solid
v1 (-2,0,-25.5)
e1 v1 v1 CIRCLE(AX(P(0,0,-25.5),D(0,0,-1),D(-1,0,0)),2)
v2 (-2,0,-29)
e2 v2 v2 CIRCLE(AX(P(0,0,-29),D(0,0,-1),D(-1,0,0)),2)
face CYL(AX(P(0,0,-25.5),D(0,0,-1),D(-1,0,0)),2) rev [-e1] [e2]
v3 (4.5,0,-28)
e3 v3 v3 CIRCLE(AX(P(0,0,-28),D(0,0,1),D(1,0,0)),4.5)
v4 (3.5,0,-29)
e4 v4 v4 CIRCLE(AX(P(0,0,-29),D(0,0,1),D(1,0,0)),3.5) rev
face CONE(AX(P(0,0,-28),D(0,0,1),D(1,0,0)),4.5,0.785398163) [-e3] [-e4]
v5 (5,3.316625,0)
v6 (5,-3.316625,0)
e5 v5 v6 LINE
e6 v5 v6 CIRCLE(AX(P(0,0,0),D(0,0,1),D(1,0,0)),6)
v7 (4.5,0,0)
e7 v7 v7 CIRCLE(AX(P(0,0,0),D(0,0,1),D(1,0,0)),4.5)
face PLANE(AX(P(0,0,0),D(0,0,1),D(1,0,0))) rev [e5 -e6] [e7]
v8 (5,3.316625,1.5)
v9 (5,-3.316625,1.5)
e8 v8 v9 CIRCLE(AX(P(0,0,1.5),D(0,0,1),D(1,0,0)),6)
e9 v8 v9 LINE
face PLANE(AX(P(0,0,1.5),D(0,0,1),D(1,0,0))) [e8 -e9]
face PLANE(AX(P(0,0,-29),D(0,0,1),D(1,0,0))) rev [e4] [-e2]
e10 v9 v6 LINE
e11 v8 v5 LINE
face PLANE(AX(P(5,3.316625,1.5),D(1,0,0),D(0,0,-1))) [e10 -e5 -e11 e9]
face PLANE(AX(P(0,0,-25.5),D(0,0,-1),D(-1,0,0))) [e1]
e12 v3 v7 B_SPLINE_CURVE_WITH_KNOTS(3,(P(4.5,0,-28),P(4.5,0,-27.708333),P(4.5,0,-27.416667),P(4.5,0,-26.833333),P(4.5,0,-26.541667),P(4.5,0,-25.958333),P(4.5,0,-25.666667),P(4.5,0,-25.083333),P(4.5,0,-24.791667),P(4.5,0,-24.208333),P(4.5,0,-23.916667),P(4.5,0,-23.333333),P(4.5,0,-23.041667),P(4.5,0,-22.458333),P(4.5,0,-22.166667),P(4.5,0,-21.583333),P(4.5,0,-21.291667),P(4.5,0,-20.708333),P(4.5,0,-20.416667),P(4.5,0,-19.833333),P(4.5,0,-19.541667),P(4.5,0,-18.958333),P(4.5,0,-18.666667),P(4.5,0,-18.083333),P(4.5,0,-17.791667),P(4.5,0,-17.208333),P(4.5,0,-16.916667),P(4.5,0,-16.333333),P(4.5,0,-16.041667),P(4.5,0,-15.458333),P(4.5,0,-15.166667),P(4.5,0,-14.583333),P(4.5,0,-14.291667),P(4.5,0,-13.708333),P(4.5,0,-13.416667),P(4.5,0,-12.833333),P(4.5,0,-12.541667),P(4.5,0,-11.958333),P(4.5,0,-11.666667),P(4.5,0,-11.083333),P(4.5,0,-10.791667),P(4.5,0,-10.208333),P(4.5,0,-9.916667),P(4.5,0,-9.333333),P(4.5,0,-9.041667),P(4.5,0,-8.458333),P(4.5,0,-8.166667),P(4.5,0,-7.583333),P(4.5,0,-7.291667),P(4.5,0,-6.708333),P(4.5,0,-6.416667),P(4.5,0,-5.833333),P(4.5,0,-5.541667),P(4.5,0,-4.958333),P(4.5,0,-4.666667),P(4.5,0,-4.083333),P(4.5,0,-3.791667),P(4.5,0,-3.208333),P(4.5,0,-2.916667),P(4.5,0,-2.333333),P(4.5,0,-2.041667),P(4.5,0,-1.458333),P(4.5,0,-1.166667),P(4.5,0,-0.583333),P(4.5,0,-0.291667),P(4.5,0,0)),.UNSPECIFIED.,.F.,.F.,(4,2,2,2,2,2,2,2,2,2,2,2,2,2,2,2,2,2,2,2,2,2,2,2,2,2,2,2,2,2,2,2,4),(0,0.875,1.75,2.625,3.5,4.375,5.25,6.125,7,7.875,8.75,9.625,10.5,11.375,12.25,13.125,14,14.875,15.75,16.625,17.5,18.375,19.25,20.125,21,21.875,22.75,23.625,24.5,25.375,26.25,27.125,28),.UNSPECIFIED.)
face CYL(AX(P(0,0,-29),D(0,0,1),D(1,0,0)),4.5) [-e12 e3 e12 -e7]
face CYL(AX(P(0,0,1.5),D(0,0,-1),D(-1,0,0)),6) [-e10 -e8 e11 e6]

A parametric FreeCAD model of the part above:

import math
import FreeCAD as App
import Part
import Sketcher
Q = App.Units.Quantity


def edges_at(feature, points):
    """Names of the edges that pass closest to the given points."""
    edges = feature.Shape.Edges
    near = lambda p: min(range(len(edges)), key=lambda i: edges[i].distToShape(Part.Vertex(*p))[0])
    return sorted({f"Edge{near(p) + 1}" for p in points})

doc = App.newDocument("Part")
body = doc.addObject("PartDesign::Body", "Body")

# Sketch on XY plane
sketch1 = body.newObject("Sketcher::SketchObject", "Sketch")
sketch1.AttachmentSupport = (doc.getObject("XY_Plane"), [""])
sketch1.MapMode = "FlatFace"
sketch1.addGeometry(Part.Circle(App.Vector(0, 0, 0), App.Vector(0, 0, 1), 4.5), False)
sketch1.addConstraint([
    Sketcher.Constraint("Coincident", 0, 3, -1, 1),
    Sketcher.Constraint("Diameter", 0, Q("9 mm")),
])
pad1 = body.newObject("PartDesign::Pad", "Pad")
pad1.Profile = sketch1
pad1.Length = 29
pad1.Reversed = True

# Sketch on XY plane
sketch2 = body.newObject("Sketcher::SketchObject", "Sketch001")
sketch2.AttachmentSupport = (doc.getObject("XY_Plane"), [""])
sketch2.MapMode = "FlatFace"
sketch2.addGeometry([
    Part.LineSegment(App.Vector(5, -3, 0), App.Vector(5, 3, 0)),
    Part.ArcOfCircle(Part.Circle(App.Vector(0, 0, 0), App.Vector(0, 0, 1), 6), math.radians(34), math.radians(326)),
], False)
sketch2.addConstraint([
    Sketcher.Constraint("Coincident", 0, 1, 1, 2),
    Sketcher.Constraint("Coincident", 1, 1, 0, 2),
    Sketcher.Constraint("Vertical", 0),
    Sketcher.Constraint("Coincident", 1, 3, -1, 1),
    Sketcher.Constraint("Radius", 1, Q("6 mm")),
    Sketcher.Constraint("DistanceX", -1, 1, 0, 1, Q("5 mm")),
])
pad2 = body.newObject("PartDesign::Pad", "Pad001")
pad2.Profile = sketch2
pad2.Length = 1.5

# Sketch on XY plane
sketch3 = body.newObject("Sketcher::SketchObject", "Sketch002")
sketch3.AttachmentSupport = (doc.getObject("XY_Plane"), [""])
sketch3.MapMode = "FlatFace"
sketch3.AttachmentOffset = App.Placement(App.Vector(0, 0, -29), App.Rotation())
sketch3.addGeometry(Part.Circle(App.Vector(0, 0, 0), App.Vector(0, 0, 1), 2), False)
sketch3.addConstraint([
    Sketcher.Constraint("Coincident", 0, 3, -1, 1),
    Sketcher.Constraint("Diameter", 0, Q("4 mm")),
])
pocket1 = body.newObject("PartDesign::Pocket", "Pocket")
pocket1.Profile = sketch3
pocket1.Length = 3.5
pocket1.Reversed = True
doc.recompute()

chamfer = body.newObject("PartDesign::Chamfer", "Chamfer")
chamfer.Base = (pocket1, edges_at(pocket1, [(-4.5, 0, -29)]))
chamfer.Size = 1

doc.recompute()
